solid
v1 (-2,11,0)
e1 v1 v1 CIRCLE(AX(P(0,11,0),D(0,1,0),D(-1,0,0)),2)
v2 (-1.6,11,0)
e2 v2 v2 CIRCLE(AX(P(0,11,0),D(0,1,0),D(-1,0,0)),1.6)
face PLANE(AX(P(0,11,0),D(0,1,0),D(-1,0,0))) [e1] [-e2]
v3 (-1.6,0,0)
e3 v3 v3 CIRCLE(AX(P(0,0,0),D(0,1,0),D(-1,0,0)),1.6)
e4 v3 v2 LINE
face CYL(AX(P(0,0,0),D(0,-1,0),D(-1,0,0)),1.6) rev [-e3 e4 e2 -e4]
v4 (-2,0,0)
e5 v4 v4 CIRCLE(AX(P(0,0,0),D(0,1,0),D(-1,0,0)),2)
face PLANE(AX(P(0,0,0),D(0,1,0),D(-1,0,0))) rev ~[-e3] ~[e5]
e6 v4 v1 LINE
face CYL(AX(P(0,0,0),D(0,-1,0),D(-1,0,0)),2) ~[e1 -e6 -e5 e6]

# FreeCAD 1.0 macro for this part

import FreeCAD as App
import Part
import Sketcher

V = App.Vector
Q = App.Units.Quantity

doc = App.newDocument("Part")
body = doc.addObject("PartDesign::Body", "Body")

# Sketch on XZ plane
sketch1 = doc.addObject("Sketcher::SketchObject", "Sketch")
body.addObject(sketch1)
sketch1.AttachmentSupport = (doc.XZ_Plane, [""])
sketch1.MapMode = "FlatFace"
sketch1.addGeometry([
    Part.Circle(V(0, 0, 0), V(0, 0, 1), 2),
    Part.Circle(V(0, 0, 0), V(0, 0, 1), 1.6),
], False)
sketch1.addConstraint([
    Sketcher.Constraint("Coincident", 0, 3, -1, 1),
    Sketcher.Constraint("Coincident", 1, 3, -1, 1),
    Sketcher.Constraint("Diameter", 0, Q("4 mm")),
    Sketcher.Constraint("Diameter", 1, Q("3.2 mm")),
])
pad1 = doc.addObject("PartDesign::Pad", "Pad")
body.addObject(pad1)
pad1.Profile = sketch1
pad1.Length = 11
pad1.Reversed = True

doc.recompute()
